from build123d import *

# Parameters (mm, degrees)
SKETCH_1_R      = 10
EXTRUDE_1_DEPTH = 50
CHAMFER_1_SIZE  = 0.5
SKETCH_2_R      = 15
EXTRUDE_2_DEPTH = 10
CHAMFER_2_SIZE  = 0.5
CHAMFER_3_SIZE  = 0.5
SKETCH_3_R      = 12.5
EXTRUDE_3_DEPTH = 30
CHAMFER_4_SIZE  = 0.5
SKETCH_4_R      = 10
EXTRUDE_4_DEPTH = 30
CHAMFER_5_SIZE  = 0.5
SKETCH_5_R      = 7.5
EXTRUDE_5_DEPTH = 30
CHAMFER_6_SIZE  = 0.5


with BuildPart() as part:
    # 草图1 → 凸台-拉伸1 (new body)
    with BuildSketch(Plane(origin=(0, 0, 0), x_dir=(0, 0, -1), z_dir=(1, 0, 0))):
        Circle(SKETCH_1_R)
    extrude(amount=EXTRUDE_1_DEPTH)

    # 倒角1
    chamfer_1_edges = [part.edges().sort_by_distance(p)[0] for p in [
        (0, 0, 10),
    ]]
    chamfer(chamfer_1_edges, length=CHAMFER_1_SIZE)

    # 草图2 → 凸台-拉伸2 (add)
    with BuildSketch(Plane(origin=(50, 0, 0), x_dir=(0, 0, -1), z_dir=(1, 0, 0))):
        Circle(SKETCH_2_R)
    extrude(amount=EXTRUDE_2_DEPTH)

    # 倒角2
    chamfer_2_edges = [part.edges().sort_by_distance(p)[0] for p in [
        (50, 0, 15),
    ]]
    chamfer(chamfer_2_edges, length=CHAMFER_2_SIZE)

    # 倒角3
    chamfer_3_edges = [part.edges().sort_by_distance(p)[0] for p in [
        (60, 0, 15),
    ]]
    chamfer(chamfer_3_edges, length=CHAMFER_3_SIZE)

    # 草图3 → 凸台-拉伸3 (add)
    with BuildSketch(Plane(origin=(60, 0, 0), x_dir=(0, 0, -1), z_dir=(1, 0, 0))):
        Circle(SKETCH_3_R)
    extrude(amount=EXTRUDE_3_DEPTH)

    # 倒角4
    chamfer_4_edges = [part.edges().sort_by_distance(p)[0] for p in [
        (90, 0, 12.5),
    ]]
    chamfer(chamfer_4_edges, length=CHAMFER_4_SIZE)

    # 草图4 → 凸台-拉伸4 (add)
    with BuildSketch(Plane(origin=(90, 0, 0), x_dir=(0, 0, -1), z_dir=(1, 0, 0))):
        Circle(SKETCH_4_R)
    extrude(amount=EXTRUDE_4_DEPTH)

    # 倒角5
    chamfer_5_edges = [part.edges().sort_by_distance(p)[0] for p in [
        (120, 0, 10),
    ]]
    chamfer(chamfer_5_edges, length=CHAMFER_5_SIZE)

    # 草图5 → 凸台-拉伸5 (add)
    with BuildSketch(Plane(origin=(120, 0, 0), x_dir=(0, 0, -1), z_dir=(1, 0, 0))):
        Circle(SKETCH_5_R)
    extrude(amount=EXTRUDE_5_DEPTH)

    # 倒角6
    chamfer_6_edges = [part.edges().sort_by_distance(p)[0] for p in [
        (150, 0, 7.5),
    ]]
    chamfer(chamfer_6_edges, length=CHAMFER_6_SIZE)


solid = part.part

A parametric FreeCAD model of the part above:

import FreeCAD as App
import Part
import Sketcher


def edges_at(feature, points):
    """Names of the edges that pass closest to the given points."""
    edges = feature.Shape.Edges
    near = lambda p: min(range(len(edges)), key=lambda i: edges[i].distToShape(Part.Vertex(*p))[0])
    return sorted({f"Edge{near(p) + 1}" for p in points})

doc = App.newDocument("Part")
params = doc.addObject("Spreadsheet::Sheet", "Params")
for row, (alias, value) in enumerate([
    ("sketch1_diameter", "20 mm"),
    ("pad1_length", "50 mm"),
    ("chamfer_size", "0.5 mm"),
    ("sketch2_diameter", "30 mm"),
    ("pad2_length", "10 mm"),
    ("chamfer2_size", "0.5 mm"),
    ("chamfer3_size", "0.5 mm"),
    ("sketch3_diameter", "25 mm"),
    ("pad3_length", "30 mm"),
    ("chamfer4_size", "0.5 mm"),
    ("sketch4_diameter", "20 mm"),
    ("pad4_length", "30 mm"),
    ("chamfer5_size", "0.5 mm"),
    ("sketch5_diameter", "15 mm"),
    ("pad5_length", "30 mm"),
    ("chamfer6_size", "0.5 mm"),
], start=1):
    params.set(f"A{row}", alias)
    params.set(f"B{row}", "=" + value)
    params.setAlias(f"B{row}", alias)

body = doc.addObject("PartDesign::Body", "Body")

# Sketch on YZ plane
sketch1 = body.newObject("Sketcher::SketchObject", "Sketch")
sketch1.AttachmentSupport = (doc.getObject("YZ_Plane"), [""])
sketch1.MapMode = "FlatFace"
sketch1.addGeometry(Part.Circle(App.Vector(0, 0, 0), App.Vector(0, 0, 1), 10), False)
sketch1.addConstraint([
    Sketcher.Constraint("Coincident", 0, 3, -1, 1),
    Sketcher.Constraint("Diameter", 0, 20.0),
])
sketch1.setExpression("Constraints[1]", "Params.sketch1_diameter")
pad1 = body.newObject("PartDesign::Pad", "Pad")
pad1.Profile = sketch1
pad1.setExpression("Length", "Params.pad1_length")
doc.recompute()

chamfer = body.newObject("PartDesign::Chamfer", "Chamfer")
chamfer.Base = (pad1, edges_at(pad1, [(0, 0, 10)]))
chamfer.setExpression("Size", "Params.chamfer_size")

# Sketch on YZ plane
sketch2 = body.newObject("Sketcher::SketchObject", "Sketch001")
sketch2.AttachmentSupport = (doc.getObject("YZ_Plane"), [""])
sketch2.MapMode = "FlatFace"
sketch2.AttachmentOffset = App.Placement(App.Vector(0, 0, 50), App.Rotation())
sketch2.addGeometry(Part.Circle(App.Vector(0, 0, 0), App.Vector(0, 0, 1), 15), False)
sketch2.addConstraint([
    Sketcher.Constraint("Coincident", 0, 3, -1, 1),
    Sketcher.Constraint("Diameter", 0, 30.0),
])
sketch2.setExpression("Constraints[1]", "Params.sketch2_diameter")
pad2 = body.newObject("PartDesign::Pad", "Pad001")
pad2.Profile = sketch2
pad2.setExpression("Length", "Params.pad2_length")
doc.recompute()

chamfer2 = body.newObject("PartDesign::Chamfer", "Chamfer001")
chamfer2.Base = (pad2, edges_at(pad2, [(50, 0, 15)]))
chamfer2.setExpression("Size", "Params.chamfer2_size")
doc.recompute()

chamfer3 = body.newObject("PartDesign::Chamfer", "Chamfer002")
chamfer3.Base = (chamfer2, edges_at(chamfer2, [(60, 0, 15)]))
chamfer3.setExpression("Size", "Params.chamfer3_size")

# Sketch on YZ plane
sketch3 = body.newObject("Sketcher::SketchObject", "Sketch002")
sketch3.AttachmentSupport = (doc.getObject("YZ_Plane"), [""])
sketch3.MapMode = "FlatFace"
sketch3.AttachmentOffset = App.Placement(App.Vector(0, 0, 60), App.Rotation())
sketch3.addGeometry(Part.Circle(App.Vector(0, 0, 0), App.Vector(0, 0, 1), 12), False)
sketch3.addConstraint([
    Sketcher.Constraint("Coincident", 0, 3, -1, 1),
    Sketcher.Constraint("Diameter", 0, 25.0),
])
sketch3.setExpression("Constraints[1]", "Params.sketch3_diameter")
pad3 = body.newObject("PartDesign::Pad", "Pad002")
pad3.Profile = sketch3
pad3.setExpression("Length", "Params.pad3_length")
doc.recompute()

chamfer4 = body.newObject("PartDesign::Chamfer", "Chamfer003")
chamfer4.Base = (pad3, edges_at(pad3, [(90, 0, 12.5)]))
chamfer4.setExpression("Size", "Params.chamfer4_size")

# Sketch on YZ plane
sketch4 = body.newObject("Sketcher::SketchObject", "Sketch003")
sketch4.AttachmentSupport = (doc.getObject("YZ_Plane"), [""])
sketch4.MapMode = "FlatFace"
sketch4.AttachmentOffset = App.Placement(App.Vector(0, 0, 90), App.Rotation())
sketch4.addGeometry(Part.Circle(App.Vector(0, 0, 0), App.Vector(0, 0, 1), 10), False)
sketch4.addConstraint([
    Sketcher.Constraint("Coincident", 0, 3, -1, 1),
    Sketcher.Constraint("Diameter", 0, 20.0),
])
sketch4.setExpression("Constraints[1]", "Params.sketch4_diameter")
pad4 = body.newObject("PartDesign::Pad", "Pad003")
pad4.Profile = sketch4
pad4.setExpression("Length", "Params.pad4_length")
doc.recompute()

chamfer5 = body.newObject("PartDesign::Chamfer", "Chamfer004")
chamfer5.Base = (pad4, edges_at(pad4, [(120, 0, 10)]))
chamfer5.setExpression("Size", "Params.chamfer5_size")

# Sketch on YZ plane
sketch5 = body.newObject("Sketcher::SketchObject", "Sketch004")
sketch5.AttachmentSupport = (doc.getObject("YZ_Plane"), [""])
sketch5.MapMode = "FlatFace"
sketch5.AttachmentOffset = App.Placement(App.Vector(0, 0, 120), App.Rotation())
sketch5.addGeometry(Part.Circle(App.Vector(0, 0, 0), App.Vector(0, 0, 1), 8), False)
sketch5.addConstraint([
    Sketcher.Constraint("Coincident", 0, 3, -1, 1),
    Sketcher.Constraint("Diameter", 0, 15.0),
])
sketch5.setExpression("Constraints[1]", "Params.sketch5_diameter")
pad5 = body.newObject("PartDesign::Pad", "Pad004")
pad5.Profile = sketch5
pad5.setExpression("Length", "Params.pad5_length")
doc.recompute()

chamfer6 = body.newObject("PartDesign::Chamfer", "Chamfer005")
chamfer6.Base = (pad5, edges_at(pad5, [(150, 0, 7.5)]))
chamfer6.setExpression("Size", "Params.chamfer6_size")

doc.recompute()
